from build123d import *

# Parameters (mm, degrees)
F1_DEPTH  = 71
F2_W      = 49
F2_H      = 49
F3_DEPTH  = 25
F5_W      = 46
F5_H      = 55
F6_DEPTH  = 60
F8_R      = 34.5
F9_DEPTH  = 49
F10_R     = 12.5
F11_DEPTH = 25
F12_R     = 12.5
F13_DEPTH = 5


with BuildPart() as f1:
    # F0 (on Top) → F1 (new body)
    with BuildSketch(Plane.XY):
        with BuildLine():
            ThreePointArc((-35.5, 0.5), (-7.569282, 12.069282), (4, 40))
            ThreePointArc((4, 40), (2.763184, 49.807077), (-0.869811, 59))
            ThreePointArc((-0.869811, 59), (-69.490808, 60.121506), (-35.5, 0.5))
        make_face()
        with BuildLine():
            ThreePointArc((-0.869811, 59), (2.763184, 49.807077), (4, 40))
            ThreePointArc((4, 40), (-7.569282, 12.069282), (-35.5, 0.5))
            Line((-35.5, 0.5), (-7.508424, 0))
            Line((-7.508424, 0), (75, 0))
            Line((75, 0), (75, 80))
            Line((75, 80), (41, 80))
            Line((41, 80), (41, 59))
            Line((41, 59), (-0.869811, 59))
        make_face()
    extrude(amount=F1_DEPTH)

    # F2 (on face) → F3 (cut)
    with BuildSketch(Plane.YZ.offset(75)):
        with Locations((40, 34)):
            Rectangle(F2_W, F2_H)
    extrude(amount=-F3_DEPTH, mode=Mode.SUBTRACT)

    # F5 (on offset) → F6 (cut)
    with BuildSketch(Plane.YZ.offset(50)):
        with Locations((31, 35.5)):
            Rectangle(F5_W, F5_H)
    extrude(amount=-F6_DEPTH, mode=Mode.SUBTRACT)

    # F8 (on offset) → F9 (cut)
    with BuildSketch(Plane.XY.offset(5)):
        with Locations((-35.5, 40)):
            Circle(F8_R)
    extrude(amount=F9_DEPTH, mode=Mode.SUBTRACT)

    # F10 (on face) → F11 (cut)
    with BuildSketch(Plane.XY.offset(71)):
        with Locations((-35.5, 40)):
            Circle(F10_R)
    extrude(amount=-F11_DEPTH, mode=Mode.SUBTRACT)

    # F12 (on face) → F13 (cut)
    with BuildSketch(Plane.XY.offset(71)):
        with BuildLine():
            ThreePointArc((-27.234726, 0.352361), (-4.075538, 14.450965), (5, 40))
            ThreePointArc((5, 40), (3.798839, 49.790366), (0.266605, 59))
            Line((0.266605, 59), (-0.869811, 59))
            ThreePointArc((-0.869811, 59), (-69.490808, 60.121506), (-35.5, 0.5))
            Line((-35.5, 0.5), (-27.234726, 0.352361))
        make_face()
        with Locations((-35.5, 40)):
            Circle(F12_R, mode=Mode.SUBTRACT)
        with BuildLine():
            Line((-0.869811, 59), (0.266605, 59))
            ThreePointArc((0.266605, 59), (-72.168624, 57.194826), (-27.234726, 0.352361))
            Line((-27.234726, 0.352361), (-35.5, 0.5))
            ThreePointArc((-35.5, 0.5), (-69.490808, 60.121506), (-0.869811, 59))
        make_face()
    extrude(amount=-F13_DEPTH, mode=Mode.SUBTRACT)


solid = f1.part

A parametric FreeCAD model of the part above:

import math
import FreeCAD as App
import Part
import Sketcher

V = App.Vector


def add_polygon(sketch, points):
    """Adds a closed chain of lines whose ends are joined by coincident constraints."""
    first, n = sketch.GeometryCount, len(points)
    for a, b in zip(points, points[1:] + points[:1]):
        sketch.addGeometry(Part.LineSegment(App.Vector(*a, 0), App.Vector(*b, 0)), False)
    for i in range(n):
        sketch.addConstraint(Sketcher.Constraint("Coincident", first + i, 2, first + (i + 1) % n, 1))

doc = App.newDocument("Part")
params = doc.addObject("Spreadsheet::Sheet", "Params")
for row, (alias, value) in enumerate([
    ("sketch1_radius", "39.5 mm"),
    ("sketch1_width", "34 mm"),
    ("sketch1_height", "80 mm"),
    ("sketch1_height2", "21 mm"),
    ("pad1_length", "71 mm"),
    ("sketch2_width", "49 mm"),
    ("pocket1_length", "25 mm"),
    ("sketch3_width", "46 mm"),
    ("sketch3_height", "55 mm"),
    ("pocket2_length", "60 mm"),
    ("sketch4_diameter", "69 mm"),
    ("pocket3_length", "49 mm"),
    ("sketch5_diameter", "25 mm"),
    ("pocket4_length", "25 mm"),
    ("sketch6_diameter", "25 mm"),
    ("sketch6_radius", "40.500001 mm"),
    ("pocket5_length", "5 mm"),
], start=1):
    params.set(f"A{row}", alias)
    params.set(f"B{row}", "=" + value)
    params.setAlias(f"B{row}", alias)

body = doc.addObject("PartDesign::Body", "Body")

# Sketch on XY plane
sketch1 = body.newObject("Sketcher::SketchObject", "Sketch")
sketch1.AttachmentSupport = (doc.getObject("XY_Plane"), [""])
sketch1.MapMode = "FlatFace"
sketch1.addGeometry(Part.ArcOfCircle(Part.Circle(V(-35.5, 40, 0), V(0, 0, 1), 39.5), math.radians(28.751561), math.radians(270)), False)
sketch1.addGeometry(Part.LineSegment(V(-35.5, 0.5, 0), V(-7.508424, 0, 0)), False)
sketch1.addGeometry(Part.LineSegment(V(-7.508424, 0, 0), V(75, 0, 0)), False)
sketch1.addGeometry(Part.LineSegment(V(75, 0, 0), V(75, 80, 0)), False)
sketch1.addGeometry(Part.LineSegment(V(75, 80, 0), V(41, 80, 0)), False)
sketch1.addGeometry(Part.LineSegment(V(41, 80, 0), V(41, 59, 0)), False)
sketch1.addGeometry(Part.LineSegment(V(41, 59, 0), V(-0.869811, 59, 0)), False)
sketch1.addConstraint(Sketcher.Constraint("Coincident", 0, 2, 1, 1))
sketch1.addConstraint(Sketcher.Constraint("Coincident", 1, 2, 2, 1))
sketch1.addConstraint(Sketcher.Constraint("Coincident", 2, 2, 3, 1))
sketch1.addConstraint(Sketcher.Constraint("Coincident", 3, 2, 4, 1))
sketch1.addConstraint(Sketcher.Constraint("Coincident", 4, 2, 5, 1))
sketch1.addConstraint(Sketcher.Constraint("Coincident", 5, 2, 6, 1))
sketch1.addConstraint(Sketcher.Constraint("Coincident", 6, 2, 0, 1))
sketch1.addConstraint(Sketcher.Constraint("Horizontal", 2))
sketch1.addConstraint(Sketcher.Constraint("Vertical", 3))
sketch1.addConstraint(Sketcher.Constraint("Horizontal", 4))
sketch1.addConstraint(Sketcher.Constraint("Vertical", 5))
sketch1.addConstraint(Sketcher.Constraint("Horizontal", 6))
sketch1.addConstraint(Sketcher.Constraint("PointOnObject", 1, 2, -1))
sketch1.addConstraint(Sketcher.Constraint("Radius", 0, 39.5))
sketch1.addConstraint(Sketcher.Constraint("DistanceX", 4, 2, 4, 1, 34.0))
sketch1.addConstraint(Sketcher.Constraint("DistanceY", 3, 1, 3, 2, 80.0))
sketch1.addConstraint(Sketcher.Constraint("DistanceY", 5, 2, 5, 1, 21.0))
sketch1.addConstraint(Sketcher.Constraint("DistanceY", -1, 1, 0, 3, 40.0))
sketch1.addConstraint(Sketcher.Constraint("DistanceX", -1, 1, 2, 2, 75.0))
sketch1.addConstraint(Sketcher.Constraint("DistanceX", 0, 3, -1, 1, 35.5))
sketch1.addConstraint(Sketcher.Constraint("DistanceX", 0, 2, -1, 1, 35.5))
sketch1.addConstraint(Sketcher.Constraint("Distance", 1, 27.996041))
sketch1.setExpression("Constraints[13]", "Params.sketch1_radius")
sketch1.setExpression("Constraints[14]", "Params.sketch1_width")
sketch1.setExpression("Constraints[15]", "Params.sketch1_height")
sketch1.setExpression("Constraints[16]", "Params.sketch1_height2")
pad1 = body.newObject("PartDesign::Pad", "Pad")
pad1.Profile = sketch1
pad1.setExpression("Length", "Params.pad1_length")

# Sketch on YZ plane
sketch2 = body.newObject("Sketcher::SketchObject", "Sketch001")
sketch2.AttachmentSupport = (doc.getObject("YZ_Plane"), [""])
sketch2.MapMode = "FlatFace"
sketch2.AttachmentOffset = App.Placement(V(0, 0, 75), App.Rotation())
add_polygon(sketch2, [(15.5, 58.5), (15.5, 9.5), (64.5, 9.5), (64.5, 58.5)])  # lines 0-3
sketch2.addConstraint(Sketcher.Constraint("Vertical", 0))
sketch2.addConstraint(Sketcher.Constraint("Horizontal", 1))
sketch2.addConstraint(Sketcher.Constraint("Vertical", 2))
sketch2.addConstraint(Sketcher.Constraint("Horizontal", 3))
sketch2.addConstraint(Sketcher.Constraint("Equal", 3, 0))
sketch2.addConstraint(Sketcher.Constraint("DistanceX", 1, 1, 1, 2, 49.0))
sketch2.addConstraint(Sketcher.Constraint("DistanceX", -1, 1, 0, 2, 15.5))
sketch2.addConstraint(Sketcher.Constraint("DistanceY", -1, 1, 0, 2, 9.5))
sketch2.setExpression("Constraints[9]", "Params.sketch2_width")
pocket1 = body.newObject("PartDesign::Pocket", "Pocket")
pocket1.Profile = sketch2
pocket1.setExpression("Length", "Params.pocket1_length")

# Sketch on YZ plane
sketch3 = body.newObject("Sketcher::SketchObject", "Sketch002")
sketch3.AttachmentSupport = (doc.getObject("YZ_Plane"), [""])
sketch3.MapMode = "FlatFace"
sketch3.AttachmentOffset = App.Placement(V(0, 0, 50), App.Rotation())
add_polygon(sketch3, [(8, 63), (8, 8), (54, 8), (54, 63)])  # lines 0-3
sketch3.addConstraint(Sketcher.Constraint("Vertical", 0))
sketch3.addConstraint(Sketcher.Constraint("Horizontal", 1))
sketch3.addConstraint(Sketcher.Constraint("Vertical", 2))
sketch3.addConstraint(Sketcher.Constraint("Horizontal", 3))
sketch3.addConstraint(Sketcher.Constraint("DistanceX", 1, 1, 1, 2, 46.0))
sketch3.addConstraint(Sketcher.Constraint("DistanceY", 0, 2, 0, 1, 55.0))
sketch3.addConstraint(Sketcher.Constraint("DistanceX", -1, 1, 0, 2, 8.0))
sketch3.addConstraint(Sketcher.Constraint("DistanceY", -1, 1, 0, 2, 8.0))
sketch3.setExpression("Constraints[8]", "Params.sketch3_width")
sketch3.setExpression("Constraints[9]", "Params.sketch3_height")
pocket2 = body.newObject("PartDesign::Pocket", "Pocket001")
pocket2.Profile = sketch3
pocket2.setExpression("Length", "Params.pocket2_length")

# Sketch on XY plane
sketch4 = body.newObject("Sketcher::SketchObject", "Sketch003")
sketch4.AttachmentSupport = (doc.getObject("XY_Plane"), [""])
sketch4.MapMode = "FlatFace"
sketch4.AttachmentOffset = App.Placement(V(0, 0, 5), App.Rotation())
sketch4.addGeometry(Part.Circle(V(-35.5, 40, 0), V(0, 0, 1), 34.5), False)
sketch4.addConstraint(Sketcher.Constraint("Diameter", 0, 69.0))
sketch4.addConstraint(Sketcher.Constraint("DistanceY", -1, 1, 0, 3, 40.0))
sketch4.addConstraint(Sketcher.Constraint("DistanceX", 0, 3, -1, 1, 35.5))
sketch4.setExpression("Constraints[0]", "Params.sketch4_diameter")
pocket3 = body.newObject("PartDesign::Pocket", "Pocket002")
pocket3.Profile = sketch4
pocket3.setExpression("Length", "Params.pocket3_length")
pocket3.Reversed = True

# Sketch on XY plane
sketch5 = body.newObject("Sketcher::SketchObject", "Sketch004")
sketch5.AttachmentSupport = (doc.getObject("XY_Plane"), [""])
sketch5.MapMode = "FlatFace"
sketch5.AttachmentOffset = App.Placement(V(0, 0, 71), App.Rotation())
sketch5.addGeometry(Part.Circle(V(-35.5, 40, 0), V(0, 0, 1), 12.5), False)
sketch5.addConstraint(Sketcher.Constraint("Diameter", 0, 25.0))
sketch5.addConstraint(Sketcher.Constraint("DistanceY", -1, 1, 0, 3, 40.0))
sketch5.addConstraint(Sketcher.Constraint("DistanceX", 0, 3, -1, 1, 35.5))
sketch5.setExpression("Constraints[0]", "Params.sketch5_diameter")
pocket4 = body.newObject("PartDesign::Pocket", "Pocket003")
pocket4.Profile = sketch5
pocket4.setExpression("Length", "Params.pocket4_length")

# Sketch on XY plane
sketch6 = body.newObject("Sketcher::SketchObject", "Sketch005")
sketch6.AttachmentSupport = (doc.getObject("XY_Plane"), [""])
sketch6.MapMode = "FlatFace"
sketch6.AttachmentOffset = App.Placement(V(0, 0, 71), App.Rotation())
sketch6.addGeometry(Part.ArcOfCircle(Part.Circle(V(-35.500001, 40, 0), V(0, 0, 1), 40.500001), math.radians(-78.224301), math.radians(0)), False)
sketch6.addGeometry(Part.ArcOfCircle(Part.Circle(V(-35.500002, 40, 0), V(0, 0, 1), 40.500002), math.radians(-0.000001), math.radians(27.978212)), False)
sketch6.addGeometry(Part.ArcOfCircle(Part.Circle(V(-35.5, 40, 0), V(0, 0, 1), 40.5), math.radians(27.978214), math.radians(281.775697)), False)
sketch6.addGeometry(Part.Circle(V(-35.5, 40, 0), V(0, 0, 1), 12.5), False)
sketch6.addConstraint(Sketcher.Constraint("Tangent", 0, 2, 1, 1))
sketch6.addConstraint(Sketcher.Constraint("Tangent", 1, 2, 2, 1))
sketch6.addConstraint(Sketcher.Constraint("Tangent", 2, 2, 0, 1))
sketch6.addConstraint(Sketcher.Constraint("Coincident", 3, 3, 0, 3))
sketch6.addConstraint(Sketcher.Constraint("Horizontal", 3, 3, 0, 2))
sketch6.addConstraint(Sketcher.Constraint("Diameter", 3, 25.0))
sketch6.addConstraint(Sketcher.Constraint("Radius", 0, 40.500001))
sketch6.addConstraint(Sketcher.Constraint("DistanceY", -1, 1, 0, 3, 40.0))
sketch6.addConstraint(Sketcher.Constraint("DistanceX", -1, 1, 0, 2, 5.0))
sketch6.addConstraint(Sketcher.Constraint("DistanceY", -1, 1, 1, 2, 59.0))
sketch6.addConstraint(Sketcher.Constraint("DistanceY", -1, 1, 2, 2, 0.352361))
sketch6.setExpression("Constraints[5]", "Params.sketch6_diameter")
sketch6.setExpression("Constraints[6]", "Params.sketch6_radius")
pocket5 = body.newObject("PartDesign::Pocket", "Pocket004")
pocket5.Profile = sketch6
pocket5.setExpression("Length", "Params.pocket5_length")

doc.recompute()
